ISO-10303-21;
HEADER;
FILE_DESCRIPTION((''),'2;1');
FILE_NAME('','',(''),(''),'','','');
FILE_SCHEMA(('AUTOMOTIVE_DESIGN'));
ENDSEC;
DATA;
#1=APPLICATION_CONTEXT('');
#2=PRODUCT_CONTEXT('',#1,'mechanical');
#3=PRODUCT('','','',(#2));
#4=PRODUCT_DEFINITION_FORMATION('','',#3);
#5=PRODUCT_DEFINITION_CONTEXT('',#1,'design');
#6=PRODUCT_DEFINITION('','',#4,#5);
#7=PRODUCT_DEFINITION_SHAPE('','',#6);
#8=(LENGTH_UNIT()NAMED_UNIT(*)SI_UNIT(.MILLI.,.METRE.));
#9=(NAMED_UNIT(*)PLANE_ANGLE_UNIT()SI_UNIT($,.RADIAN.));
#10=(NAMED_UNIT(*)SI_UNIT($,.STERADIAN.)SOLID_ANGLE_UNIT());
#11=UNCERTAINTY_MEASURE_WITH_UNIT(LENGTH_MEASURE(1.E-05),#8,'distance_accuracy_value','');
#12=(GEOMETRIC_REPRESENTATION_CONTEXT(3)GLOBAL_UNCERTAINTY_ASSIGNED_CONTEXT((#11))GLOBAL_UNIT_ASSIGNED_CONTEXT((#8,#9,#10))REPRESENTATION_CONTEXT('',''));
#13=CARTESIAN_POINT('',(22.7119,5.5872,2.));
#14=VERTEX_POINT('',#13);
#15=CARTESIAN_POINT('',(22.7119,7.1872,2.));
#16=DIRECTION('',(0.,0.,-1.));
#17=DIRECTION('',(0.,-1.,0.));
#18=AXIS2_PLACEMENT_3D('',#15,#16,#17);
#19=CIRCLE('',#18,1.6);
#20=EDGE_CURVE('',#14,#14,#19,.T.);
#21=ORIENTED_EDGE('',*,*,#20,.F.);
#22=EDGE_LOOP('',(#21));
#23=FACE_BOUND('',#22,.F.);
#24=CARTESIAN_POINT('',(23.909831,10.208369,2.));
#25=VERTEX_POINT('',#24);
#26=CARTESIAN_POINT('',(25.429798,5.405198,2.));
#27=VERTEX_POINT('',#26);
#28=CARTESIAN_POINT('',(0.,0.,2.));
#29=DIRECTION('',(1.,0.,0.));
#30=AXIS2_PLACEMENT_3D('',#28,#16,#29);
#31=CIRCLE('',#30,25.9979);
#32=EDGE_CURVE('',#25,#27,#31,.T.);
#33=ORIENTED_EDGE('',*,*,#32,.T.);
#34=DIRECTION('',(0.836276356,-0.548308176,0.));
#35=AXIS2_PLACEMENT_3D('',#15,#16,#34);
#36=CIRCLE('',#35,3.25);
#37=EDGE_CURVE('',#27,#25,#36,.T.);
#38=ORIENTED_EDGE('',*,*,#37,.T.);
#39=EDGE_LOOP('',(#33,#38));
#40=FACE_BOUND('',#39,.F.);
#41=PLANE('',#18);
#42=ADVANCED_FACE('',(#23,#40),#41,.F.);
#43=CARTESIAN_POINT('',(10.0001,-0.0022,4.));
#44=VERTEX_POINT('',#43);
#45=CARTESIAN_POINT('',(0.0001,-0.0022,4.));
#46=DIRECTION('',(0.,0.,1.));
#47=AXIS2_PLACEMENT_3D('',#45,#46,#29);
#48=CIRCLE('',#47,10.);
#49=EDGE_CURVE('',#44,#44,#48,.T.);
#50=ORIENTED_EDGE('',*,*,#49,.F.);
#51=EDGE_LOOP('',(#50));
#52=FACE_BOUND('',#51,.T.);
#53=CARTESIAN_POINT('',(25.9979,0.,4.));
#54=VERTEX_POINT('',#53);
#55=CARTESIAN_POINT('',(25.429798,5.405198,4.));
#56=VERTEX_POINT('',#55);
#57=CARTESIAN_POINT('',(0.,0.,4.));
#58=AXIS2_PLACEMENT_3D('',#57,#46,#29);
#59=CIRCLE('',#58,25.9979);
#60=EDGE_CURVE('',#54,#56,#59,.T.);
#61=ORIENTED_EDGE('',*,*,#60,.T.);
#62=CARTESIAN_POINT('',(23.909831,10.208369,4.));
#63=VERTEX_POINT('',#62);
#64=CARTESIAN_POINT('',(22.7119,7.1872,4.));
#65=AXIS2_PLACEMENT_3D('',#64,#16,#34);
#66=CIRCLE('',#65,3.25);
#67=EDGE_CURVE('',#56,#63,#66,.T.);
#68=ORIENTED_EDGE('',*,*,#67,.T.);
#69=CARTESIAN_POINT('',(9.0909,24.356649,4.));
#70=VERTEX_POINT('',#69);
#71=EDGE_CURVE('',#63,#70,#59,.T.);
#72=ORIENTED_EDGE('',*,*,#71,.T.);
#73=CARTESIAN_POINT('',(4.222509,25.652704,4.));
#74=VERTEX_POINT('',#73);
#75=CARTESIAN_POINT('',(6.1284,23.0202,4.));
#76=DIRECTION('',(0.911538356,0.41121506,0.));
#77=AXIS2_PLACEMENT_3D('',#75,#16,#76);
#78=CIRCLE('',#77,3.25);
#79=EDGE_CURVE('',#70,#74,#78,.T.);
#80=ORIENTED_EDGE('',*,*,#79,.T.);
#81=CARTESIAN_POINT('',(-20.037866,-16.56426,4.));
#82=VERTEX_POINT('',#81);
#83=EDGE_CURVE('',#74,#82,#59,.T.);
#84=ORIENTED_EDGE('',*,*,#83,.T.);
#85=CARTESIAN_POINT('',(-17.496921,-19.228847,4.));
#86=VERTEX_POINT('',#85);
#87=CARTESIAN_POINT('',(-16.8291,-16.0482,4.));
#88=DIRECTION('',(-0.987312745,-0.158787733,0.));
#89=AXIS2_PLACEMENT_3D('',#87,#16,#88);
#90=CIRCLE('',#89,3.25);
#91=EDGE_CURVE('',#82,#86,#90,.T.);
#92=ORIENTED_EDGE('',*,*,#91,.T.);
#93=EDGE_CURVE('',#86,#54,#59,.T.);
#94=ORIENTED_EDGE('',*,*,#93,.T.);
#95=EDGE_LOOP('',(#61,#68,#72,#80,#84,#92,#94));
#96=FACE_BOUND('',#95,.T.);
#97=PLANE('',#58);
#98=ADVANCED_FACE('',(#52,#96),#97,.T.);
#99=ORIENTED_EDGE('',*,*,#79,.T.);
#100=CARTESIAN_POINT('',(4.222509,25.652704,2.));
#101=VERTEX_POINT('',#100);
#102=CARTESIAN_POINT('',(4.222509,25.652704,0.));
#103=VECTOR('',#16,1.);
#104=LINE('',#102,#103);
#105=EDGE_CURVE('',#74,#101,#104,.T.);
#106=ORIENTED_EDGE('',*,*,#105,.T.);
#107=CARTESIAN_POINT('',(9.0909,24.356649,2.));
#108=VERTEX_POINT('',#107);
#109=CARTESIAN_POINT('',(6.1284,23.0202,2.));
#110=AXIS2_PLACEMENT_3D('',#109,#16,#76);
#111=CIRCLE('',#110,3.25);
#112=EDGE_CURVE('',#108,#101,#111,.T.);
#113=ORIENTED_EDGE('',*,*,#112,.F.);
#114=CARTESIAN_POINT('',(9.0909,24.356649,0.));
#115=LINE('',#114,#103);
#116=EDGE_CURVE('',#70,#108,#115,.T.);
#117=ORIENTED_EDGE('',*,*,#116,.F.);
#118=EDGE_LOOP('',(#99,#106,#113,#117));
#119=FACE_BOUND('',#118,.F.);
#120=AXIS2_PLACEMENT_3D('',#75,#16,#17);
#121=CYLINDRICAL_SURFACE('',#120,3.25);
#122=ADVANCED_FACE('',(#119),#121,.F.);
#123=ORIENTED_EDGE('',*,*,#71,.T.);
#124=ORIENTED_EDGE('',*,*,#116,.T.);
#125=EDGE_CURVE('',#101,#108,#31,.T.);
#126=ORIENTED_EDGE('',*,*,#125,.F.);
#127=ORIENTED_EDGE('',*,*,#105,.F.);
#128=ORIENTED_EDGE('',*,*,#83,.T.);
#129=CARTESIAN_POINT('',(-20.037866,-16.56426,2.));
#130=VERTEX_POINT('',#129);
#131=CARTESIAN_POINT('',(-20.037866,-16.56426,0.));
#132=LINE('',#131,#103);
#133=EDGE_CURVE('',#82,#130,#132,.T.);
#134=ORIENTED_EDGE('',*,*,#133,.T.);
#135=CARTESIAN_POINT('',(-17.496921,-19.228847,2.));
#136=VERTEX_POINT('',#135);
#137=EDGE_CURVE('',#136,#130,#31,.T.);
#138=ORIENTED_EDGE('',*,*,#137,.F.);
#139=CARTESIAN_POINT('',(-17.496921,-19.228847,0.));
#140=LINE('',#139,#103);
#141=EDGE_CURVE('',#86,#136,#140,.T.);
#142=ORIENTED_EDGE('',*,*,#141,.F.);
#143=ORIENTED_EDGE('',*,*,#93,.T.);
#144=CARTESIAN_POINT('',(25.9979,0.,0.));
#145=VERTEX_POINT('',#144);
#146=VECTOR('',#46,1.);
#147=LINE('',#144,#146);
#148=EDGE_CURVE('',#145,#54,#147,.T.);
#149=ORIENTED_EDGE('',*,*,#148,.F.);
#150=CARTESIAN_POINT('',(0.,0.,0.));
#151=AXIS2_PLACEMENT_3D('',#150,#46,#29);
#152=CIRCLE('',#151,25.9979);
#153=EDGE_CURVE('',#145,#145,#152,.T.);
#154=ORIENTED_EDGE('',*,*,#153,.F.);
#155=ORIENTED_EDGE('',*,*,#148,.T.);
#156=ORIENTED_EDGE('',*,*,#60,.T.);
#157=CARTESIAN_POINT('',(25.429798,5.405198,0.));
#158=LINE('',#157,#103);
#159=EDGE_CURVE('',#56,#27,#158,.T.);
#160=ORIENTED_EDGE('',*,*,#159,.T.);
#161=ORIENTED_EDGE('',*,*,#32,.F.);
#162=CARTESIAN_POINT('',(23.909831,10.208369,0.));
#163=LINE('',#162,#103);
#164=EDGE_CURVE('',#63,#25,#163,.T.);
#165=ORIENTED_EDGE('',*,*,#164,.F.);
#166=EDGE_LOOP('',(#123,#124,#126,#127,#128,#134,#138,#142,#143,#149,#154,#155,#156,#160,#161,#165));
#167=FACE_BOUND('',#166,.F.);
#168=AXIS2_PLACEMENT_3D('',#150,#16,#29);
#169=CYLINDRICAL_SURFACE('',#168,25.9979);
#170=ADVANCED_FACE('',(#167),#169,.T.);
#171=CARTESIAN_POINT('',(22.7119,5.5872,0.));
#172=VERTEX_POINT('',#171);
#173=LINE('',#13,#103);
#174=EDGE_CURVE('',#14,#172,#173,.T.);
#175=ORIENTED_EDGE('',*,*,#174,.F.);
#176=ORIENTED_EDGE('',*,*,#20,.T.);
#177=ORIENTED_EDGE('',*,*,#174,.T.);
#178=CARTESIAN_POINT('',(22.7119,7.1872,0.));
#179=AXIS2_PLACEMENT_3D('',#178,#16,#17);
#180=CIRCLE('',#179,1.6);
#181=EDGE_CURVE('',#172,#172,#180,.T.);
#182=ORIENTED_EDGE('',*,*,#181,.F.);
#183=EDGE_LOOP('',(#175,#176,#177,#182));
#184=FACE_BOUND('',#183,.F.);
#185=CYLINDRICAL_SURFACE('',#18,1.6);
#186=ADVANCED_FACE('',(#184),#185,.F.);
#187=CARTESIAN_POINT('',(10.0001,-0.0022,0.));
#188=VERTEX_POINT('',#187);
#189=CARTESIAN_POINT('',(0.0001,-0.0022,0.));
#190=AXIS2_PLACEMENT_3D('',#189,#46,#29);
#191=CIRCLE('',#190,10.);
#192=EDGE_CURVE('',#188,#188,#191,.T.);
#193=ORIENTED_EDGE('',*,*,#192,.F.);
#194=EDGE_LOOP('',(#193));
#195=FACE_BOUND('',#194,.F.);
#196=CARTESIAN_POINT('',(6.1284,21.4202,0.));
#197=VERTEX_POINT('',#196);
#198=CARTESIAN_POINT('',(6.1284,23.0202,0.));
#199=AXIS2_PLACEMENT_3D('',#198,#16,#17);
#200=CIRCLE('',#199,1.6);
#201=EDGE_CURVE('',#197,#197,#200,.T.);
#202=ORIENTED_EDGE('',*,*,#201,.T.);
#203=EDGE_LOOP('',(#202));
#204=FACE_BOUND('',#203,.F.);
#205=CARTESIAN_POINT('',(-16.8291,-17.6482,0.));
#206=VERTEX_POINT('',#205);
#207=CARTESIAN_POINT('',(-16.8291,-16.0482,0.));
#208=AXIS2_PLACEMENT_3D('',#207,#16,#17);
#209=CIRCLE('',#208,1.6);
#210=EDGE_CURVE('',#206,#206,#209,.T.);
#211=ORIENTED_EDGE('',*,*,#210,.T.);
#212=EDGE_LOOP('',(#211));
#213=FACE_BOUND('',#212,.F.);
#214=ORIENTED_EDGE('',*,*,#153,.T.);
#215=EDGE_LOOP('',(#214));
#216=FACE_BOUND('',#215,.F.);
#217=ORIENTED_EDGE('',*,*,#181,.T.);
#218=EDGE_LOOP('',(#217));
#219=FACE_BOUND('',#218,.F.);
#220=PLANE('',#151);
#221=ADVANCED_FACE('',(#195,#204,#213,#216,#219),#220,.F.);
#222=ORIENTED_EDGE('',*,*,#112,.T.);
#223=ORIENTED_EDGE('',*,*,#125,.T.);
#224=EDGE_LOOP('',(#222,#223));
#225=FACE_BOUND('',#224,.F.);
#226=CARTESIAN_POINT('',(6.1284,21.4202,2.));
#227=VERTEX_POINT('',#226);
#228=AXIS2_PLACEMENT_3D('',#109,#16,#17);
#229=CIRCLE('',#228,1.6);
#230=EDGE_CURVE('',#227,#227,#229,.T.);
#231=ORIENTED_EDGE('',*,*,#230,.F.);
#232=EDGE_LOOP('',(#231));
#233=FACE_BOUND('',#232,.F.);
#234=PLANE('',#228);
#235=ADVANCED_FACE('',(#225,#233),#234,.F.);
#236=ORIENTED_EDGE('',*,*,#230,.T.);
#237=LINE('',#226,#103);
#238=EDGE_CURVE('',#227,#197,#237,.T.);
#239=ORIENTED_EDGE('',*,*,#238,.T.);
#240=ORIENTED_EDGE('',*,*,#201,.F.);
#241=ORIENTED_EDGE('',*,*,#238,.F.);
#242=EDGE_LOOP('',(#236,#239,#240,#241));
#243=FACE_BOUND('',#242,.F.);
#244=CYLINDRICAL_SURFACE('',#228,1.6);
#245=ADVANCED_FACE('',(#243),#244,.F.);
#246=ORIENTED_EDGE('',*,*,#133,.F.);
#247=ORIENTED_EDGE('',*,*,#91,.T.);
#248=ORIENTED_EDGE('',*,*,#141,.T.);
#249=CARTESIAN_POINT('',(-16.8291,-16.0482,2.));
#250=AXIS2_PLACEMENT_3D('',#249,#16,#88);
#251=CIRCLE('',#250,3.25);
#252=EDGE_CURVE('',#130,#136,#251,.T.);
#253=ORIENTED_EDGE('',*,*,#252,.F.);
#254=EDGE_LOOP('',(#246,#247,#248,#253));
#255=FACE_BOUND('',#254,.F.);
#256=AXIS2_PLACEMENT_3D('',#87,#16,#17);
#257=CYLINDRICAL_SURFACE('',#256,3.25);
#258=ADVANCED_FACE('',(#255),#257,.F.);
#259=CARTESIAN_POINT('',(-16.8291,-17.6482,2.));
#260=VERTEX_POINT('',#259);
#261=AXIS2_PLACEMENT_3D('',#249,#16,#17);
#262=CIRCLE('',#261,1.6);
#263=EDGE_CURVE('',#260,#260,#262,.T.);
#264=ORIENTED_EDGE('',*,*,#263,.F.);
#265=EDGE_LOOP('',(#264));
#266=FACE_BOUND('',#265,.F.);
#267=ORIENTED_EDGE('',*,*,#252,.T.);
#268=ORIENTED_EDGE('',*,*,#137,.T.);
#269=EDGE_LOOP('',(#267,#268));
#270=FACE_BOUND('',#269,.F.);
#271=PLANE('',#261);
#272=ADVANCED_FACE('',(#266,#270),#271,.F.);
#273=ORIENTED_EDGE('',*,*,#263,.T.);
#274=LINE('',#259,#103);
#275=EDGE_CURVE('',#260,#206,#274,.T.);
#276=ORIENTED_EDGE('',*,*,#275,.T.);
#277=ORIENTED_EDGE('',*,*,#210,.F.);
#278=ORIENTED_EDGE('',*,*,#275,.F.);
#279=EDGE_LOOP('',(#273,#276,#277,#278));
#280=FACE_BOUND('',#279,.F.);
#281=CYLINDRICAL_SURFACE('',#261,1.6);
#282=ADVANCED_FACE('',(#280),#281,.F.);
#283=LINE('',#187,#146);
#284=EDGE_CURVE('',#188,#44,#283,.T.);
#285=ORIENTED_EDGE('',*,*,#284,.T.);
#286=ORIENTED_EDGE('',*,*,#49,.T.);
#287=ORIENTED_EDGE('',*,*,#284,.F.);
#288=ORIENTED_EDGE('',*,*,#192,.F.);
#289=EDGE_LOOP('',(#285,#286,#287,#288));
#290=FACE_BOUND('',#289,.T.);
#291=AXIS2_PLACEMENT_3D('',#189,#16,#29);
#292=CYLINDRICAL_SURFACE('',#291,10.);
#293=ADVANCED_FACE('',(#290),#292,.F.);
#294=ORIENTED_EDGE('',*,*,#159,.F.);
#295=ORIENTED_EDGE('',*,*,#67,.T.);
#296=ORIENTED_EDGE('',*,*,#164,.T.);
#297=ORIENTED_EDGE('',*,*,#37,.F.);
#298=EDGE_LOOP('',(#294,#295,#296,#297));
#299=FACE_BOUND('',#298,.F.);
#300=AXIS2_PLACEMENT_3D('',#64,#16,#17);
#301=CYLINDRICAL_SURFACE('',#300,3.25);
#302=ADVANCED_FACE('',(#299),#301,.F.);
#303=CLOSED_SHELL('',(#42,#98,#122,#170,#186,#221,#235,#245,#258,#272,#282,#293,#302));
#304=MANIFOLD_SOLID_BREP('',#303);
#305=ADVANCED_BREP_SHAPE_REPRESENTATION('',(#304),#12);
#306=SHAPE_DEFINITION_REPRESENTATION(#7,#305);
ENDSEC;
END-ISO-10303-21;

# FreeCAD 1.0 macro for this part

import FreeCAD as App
import Part
import Sketcher

V = App.Vector
Q = App.Units.Quantity

doc = App.newDocument("Part")
body = doc.addObject("PartDesign::Body", "Body")

sketch1 = body.newObject("Sketcher::SketchObject", "Sketch")
sketch1.AttachmentSupport = (doc.getObject("XY_Plane"), [""])
sketch1.MapMode = "FlatFace"
sketch1.addGeometry([
    Part.Circle(V(0, 0, 0), V(0, 0, 1), 26),
    Part.Circle(V(0, 0, 0), V(0, 0, 1), 10),
], False)
sketch1.addConstraint([
    Sketcher.Constraint("Coincident", 0, 3, -1, 1),
    Sketcher.Constraint("PointOnObject", 1, 3, -2),
    Sketcher.Constraint("Diameter", 1, Q("20 mm")),
    Sketcher.Constraint("Diameter", 0, Q("51.9958 mm")),
    Sketcher.Constraint("DistanceY", 1, 3, -1, 1, Q("0.0022 mm")),
])
pad1 = body.newObject("PartDesign::Pad", "Pad")
pad1.Profile = sketch1
pad1.Length = 4

sketch2 = body.newObject("Sketcher::SketchObject", "Sketch001")
sketch2.AttachmentSupport = (doc.getObject("XY_Plane"), [""])
sketch2.MapMode = "FlatFace"
sketch2.AttachmentOffset = App.Placement(V(0, 0, 4), App.Rotation())
sketch2.addGeometry([
    Part.Circle(V(6.1, 23, 0), V(0, 0, 1), 1.6),
    Part.Circle(V(22.7, 7.2, 0), V(0, 0, 1), 1.6),
    Part.Circle(V(-16.8, -16, 0), V(0, 0, 1), 1.6),
], False)
sketch2.addConstraint([
    Sketcher.Constraint("Equal", 0, 1),
    Sketcher.Constraint("Equal", 1, 2),
    Sketcher.Constraint("Diameter", 0, Q("3.2 mm")),
    Sketcher.Constraint("DistanceX", -1, 1, 1, 3, Q("22.712 mm")),
    Sketcher.Constraint("DistanceX", 2, 3, -1, 1, Q("16.829 mm")),
    Sketcher.Constraint("DistanceY", 1, 3, 0, 3, Q("15.833 mm")),
    Sketcher.Constraint("DistanceX", -1, 1, 0, 3, Q("6.1284 mm")),
    Sketcher.Constraint("DistanceY", -1, 1, 0, 3, Q("23.0202 mm")),
    Sketcher.Constraint("DistanceY", 2, 3, -1, 1, Q("16.0482 mm")),
])
doc.recompute()
hole = body.newObject("PartDesign::Hole", "Hole")
hole.Profile = sketch2
hole.ThreadType = "None"
hole.Diameter = 3.2
hole.DepthType = "ThroughAll"
hole.HoleCutType = "Counterbore"
hole.HoleCutDiameter = 6.5
hole.HoleCutDepth = 2

doc.recompute()
